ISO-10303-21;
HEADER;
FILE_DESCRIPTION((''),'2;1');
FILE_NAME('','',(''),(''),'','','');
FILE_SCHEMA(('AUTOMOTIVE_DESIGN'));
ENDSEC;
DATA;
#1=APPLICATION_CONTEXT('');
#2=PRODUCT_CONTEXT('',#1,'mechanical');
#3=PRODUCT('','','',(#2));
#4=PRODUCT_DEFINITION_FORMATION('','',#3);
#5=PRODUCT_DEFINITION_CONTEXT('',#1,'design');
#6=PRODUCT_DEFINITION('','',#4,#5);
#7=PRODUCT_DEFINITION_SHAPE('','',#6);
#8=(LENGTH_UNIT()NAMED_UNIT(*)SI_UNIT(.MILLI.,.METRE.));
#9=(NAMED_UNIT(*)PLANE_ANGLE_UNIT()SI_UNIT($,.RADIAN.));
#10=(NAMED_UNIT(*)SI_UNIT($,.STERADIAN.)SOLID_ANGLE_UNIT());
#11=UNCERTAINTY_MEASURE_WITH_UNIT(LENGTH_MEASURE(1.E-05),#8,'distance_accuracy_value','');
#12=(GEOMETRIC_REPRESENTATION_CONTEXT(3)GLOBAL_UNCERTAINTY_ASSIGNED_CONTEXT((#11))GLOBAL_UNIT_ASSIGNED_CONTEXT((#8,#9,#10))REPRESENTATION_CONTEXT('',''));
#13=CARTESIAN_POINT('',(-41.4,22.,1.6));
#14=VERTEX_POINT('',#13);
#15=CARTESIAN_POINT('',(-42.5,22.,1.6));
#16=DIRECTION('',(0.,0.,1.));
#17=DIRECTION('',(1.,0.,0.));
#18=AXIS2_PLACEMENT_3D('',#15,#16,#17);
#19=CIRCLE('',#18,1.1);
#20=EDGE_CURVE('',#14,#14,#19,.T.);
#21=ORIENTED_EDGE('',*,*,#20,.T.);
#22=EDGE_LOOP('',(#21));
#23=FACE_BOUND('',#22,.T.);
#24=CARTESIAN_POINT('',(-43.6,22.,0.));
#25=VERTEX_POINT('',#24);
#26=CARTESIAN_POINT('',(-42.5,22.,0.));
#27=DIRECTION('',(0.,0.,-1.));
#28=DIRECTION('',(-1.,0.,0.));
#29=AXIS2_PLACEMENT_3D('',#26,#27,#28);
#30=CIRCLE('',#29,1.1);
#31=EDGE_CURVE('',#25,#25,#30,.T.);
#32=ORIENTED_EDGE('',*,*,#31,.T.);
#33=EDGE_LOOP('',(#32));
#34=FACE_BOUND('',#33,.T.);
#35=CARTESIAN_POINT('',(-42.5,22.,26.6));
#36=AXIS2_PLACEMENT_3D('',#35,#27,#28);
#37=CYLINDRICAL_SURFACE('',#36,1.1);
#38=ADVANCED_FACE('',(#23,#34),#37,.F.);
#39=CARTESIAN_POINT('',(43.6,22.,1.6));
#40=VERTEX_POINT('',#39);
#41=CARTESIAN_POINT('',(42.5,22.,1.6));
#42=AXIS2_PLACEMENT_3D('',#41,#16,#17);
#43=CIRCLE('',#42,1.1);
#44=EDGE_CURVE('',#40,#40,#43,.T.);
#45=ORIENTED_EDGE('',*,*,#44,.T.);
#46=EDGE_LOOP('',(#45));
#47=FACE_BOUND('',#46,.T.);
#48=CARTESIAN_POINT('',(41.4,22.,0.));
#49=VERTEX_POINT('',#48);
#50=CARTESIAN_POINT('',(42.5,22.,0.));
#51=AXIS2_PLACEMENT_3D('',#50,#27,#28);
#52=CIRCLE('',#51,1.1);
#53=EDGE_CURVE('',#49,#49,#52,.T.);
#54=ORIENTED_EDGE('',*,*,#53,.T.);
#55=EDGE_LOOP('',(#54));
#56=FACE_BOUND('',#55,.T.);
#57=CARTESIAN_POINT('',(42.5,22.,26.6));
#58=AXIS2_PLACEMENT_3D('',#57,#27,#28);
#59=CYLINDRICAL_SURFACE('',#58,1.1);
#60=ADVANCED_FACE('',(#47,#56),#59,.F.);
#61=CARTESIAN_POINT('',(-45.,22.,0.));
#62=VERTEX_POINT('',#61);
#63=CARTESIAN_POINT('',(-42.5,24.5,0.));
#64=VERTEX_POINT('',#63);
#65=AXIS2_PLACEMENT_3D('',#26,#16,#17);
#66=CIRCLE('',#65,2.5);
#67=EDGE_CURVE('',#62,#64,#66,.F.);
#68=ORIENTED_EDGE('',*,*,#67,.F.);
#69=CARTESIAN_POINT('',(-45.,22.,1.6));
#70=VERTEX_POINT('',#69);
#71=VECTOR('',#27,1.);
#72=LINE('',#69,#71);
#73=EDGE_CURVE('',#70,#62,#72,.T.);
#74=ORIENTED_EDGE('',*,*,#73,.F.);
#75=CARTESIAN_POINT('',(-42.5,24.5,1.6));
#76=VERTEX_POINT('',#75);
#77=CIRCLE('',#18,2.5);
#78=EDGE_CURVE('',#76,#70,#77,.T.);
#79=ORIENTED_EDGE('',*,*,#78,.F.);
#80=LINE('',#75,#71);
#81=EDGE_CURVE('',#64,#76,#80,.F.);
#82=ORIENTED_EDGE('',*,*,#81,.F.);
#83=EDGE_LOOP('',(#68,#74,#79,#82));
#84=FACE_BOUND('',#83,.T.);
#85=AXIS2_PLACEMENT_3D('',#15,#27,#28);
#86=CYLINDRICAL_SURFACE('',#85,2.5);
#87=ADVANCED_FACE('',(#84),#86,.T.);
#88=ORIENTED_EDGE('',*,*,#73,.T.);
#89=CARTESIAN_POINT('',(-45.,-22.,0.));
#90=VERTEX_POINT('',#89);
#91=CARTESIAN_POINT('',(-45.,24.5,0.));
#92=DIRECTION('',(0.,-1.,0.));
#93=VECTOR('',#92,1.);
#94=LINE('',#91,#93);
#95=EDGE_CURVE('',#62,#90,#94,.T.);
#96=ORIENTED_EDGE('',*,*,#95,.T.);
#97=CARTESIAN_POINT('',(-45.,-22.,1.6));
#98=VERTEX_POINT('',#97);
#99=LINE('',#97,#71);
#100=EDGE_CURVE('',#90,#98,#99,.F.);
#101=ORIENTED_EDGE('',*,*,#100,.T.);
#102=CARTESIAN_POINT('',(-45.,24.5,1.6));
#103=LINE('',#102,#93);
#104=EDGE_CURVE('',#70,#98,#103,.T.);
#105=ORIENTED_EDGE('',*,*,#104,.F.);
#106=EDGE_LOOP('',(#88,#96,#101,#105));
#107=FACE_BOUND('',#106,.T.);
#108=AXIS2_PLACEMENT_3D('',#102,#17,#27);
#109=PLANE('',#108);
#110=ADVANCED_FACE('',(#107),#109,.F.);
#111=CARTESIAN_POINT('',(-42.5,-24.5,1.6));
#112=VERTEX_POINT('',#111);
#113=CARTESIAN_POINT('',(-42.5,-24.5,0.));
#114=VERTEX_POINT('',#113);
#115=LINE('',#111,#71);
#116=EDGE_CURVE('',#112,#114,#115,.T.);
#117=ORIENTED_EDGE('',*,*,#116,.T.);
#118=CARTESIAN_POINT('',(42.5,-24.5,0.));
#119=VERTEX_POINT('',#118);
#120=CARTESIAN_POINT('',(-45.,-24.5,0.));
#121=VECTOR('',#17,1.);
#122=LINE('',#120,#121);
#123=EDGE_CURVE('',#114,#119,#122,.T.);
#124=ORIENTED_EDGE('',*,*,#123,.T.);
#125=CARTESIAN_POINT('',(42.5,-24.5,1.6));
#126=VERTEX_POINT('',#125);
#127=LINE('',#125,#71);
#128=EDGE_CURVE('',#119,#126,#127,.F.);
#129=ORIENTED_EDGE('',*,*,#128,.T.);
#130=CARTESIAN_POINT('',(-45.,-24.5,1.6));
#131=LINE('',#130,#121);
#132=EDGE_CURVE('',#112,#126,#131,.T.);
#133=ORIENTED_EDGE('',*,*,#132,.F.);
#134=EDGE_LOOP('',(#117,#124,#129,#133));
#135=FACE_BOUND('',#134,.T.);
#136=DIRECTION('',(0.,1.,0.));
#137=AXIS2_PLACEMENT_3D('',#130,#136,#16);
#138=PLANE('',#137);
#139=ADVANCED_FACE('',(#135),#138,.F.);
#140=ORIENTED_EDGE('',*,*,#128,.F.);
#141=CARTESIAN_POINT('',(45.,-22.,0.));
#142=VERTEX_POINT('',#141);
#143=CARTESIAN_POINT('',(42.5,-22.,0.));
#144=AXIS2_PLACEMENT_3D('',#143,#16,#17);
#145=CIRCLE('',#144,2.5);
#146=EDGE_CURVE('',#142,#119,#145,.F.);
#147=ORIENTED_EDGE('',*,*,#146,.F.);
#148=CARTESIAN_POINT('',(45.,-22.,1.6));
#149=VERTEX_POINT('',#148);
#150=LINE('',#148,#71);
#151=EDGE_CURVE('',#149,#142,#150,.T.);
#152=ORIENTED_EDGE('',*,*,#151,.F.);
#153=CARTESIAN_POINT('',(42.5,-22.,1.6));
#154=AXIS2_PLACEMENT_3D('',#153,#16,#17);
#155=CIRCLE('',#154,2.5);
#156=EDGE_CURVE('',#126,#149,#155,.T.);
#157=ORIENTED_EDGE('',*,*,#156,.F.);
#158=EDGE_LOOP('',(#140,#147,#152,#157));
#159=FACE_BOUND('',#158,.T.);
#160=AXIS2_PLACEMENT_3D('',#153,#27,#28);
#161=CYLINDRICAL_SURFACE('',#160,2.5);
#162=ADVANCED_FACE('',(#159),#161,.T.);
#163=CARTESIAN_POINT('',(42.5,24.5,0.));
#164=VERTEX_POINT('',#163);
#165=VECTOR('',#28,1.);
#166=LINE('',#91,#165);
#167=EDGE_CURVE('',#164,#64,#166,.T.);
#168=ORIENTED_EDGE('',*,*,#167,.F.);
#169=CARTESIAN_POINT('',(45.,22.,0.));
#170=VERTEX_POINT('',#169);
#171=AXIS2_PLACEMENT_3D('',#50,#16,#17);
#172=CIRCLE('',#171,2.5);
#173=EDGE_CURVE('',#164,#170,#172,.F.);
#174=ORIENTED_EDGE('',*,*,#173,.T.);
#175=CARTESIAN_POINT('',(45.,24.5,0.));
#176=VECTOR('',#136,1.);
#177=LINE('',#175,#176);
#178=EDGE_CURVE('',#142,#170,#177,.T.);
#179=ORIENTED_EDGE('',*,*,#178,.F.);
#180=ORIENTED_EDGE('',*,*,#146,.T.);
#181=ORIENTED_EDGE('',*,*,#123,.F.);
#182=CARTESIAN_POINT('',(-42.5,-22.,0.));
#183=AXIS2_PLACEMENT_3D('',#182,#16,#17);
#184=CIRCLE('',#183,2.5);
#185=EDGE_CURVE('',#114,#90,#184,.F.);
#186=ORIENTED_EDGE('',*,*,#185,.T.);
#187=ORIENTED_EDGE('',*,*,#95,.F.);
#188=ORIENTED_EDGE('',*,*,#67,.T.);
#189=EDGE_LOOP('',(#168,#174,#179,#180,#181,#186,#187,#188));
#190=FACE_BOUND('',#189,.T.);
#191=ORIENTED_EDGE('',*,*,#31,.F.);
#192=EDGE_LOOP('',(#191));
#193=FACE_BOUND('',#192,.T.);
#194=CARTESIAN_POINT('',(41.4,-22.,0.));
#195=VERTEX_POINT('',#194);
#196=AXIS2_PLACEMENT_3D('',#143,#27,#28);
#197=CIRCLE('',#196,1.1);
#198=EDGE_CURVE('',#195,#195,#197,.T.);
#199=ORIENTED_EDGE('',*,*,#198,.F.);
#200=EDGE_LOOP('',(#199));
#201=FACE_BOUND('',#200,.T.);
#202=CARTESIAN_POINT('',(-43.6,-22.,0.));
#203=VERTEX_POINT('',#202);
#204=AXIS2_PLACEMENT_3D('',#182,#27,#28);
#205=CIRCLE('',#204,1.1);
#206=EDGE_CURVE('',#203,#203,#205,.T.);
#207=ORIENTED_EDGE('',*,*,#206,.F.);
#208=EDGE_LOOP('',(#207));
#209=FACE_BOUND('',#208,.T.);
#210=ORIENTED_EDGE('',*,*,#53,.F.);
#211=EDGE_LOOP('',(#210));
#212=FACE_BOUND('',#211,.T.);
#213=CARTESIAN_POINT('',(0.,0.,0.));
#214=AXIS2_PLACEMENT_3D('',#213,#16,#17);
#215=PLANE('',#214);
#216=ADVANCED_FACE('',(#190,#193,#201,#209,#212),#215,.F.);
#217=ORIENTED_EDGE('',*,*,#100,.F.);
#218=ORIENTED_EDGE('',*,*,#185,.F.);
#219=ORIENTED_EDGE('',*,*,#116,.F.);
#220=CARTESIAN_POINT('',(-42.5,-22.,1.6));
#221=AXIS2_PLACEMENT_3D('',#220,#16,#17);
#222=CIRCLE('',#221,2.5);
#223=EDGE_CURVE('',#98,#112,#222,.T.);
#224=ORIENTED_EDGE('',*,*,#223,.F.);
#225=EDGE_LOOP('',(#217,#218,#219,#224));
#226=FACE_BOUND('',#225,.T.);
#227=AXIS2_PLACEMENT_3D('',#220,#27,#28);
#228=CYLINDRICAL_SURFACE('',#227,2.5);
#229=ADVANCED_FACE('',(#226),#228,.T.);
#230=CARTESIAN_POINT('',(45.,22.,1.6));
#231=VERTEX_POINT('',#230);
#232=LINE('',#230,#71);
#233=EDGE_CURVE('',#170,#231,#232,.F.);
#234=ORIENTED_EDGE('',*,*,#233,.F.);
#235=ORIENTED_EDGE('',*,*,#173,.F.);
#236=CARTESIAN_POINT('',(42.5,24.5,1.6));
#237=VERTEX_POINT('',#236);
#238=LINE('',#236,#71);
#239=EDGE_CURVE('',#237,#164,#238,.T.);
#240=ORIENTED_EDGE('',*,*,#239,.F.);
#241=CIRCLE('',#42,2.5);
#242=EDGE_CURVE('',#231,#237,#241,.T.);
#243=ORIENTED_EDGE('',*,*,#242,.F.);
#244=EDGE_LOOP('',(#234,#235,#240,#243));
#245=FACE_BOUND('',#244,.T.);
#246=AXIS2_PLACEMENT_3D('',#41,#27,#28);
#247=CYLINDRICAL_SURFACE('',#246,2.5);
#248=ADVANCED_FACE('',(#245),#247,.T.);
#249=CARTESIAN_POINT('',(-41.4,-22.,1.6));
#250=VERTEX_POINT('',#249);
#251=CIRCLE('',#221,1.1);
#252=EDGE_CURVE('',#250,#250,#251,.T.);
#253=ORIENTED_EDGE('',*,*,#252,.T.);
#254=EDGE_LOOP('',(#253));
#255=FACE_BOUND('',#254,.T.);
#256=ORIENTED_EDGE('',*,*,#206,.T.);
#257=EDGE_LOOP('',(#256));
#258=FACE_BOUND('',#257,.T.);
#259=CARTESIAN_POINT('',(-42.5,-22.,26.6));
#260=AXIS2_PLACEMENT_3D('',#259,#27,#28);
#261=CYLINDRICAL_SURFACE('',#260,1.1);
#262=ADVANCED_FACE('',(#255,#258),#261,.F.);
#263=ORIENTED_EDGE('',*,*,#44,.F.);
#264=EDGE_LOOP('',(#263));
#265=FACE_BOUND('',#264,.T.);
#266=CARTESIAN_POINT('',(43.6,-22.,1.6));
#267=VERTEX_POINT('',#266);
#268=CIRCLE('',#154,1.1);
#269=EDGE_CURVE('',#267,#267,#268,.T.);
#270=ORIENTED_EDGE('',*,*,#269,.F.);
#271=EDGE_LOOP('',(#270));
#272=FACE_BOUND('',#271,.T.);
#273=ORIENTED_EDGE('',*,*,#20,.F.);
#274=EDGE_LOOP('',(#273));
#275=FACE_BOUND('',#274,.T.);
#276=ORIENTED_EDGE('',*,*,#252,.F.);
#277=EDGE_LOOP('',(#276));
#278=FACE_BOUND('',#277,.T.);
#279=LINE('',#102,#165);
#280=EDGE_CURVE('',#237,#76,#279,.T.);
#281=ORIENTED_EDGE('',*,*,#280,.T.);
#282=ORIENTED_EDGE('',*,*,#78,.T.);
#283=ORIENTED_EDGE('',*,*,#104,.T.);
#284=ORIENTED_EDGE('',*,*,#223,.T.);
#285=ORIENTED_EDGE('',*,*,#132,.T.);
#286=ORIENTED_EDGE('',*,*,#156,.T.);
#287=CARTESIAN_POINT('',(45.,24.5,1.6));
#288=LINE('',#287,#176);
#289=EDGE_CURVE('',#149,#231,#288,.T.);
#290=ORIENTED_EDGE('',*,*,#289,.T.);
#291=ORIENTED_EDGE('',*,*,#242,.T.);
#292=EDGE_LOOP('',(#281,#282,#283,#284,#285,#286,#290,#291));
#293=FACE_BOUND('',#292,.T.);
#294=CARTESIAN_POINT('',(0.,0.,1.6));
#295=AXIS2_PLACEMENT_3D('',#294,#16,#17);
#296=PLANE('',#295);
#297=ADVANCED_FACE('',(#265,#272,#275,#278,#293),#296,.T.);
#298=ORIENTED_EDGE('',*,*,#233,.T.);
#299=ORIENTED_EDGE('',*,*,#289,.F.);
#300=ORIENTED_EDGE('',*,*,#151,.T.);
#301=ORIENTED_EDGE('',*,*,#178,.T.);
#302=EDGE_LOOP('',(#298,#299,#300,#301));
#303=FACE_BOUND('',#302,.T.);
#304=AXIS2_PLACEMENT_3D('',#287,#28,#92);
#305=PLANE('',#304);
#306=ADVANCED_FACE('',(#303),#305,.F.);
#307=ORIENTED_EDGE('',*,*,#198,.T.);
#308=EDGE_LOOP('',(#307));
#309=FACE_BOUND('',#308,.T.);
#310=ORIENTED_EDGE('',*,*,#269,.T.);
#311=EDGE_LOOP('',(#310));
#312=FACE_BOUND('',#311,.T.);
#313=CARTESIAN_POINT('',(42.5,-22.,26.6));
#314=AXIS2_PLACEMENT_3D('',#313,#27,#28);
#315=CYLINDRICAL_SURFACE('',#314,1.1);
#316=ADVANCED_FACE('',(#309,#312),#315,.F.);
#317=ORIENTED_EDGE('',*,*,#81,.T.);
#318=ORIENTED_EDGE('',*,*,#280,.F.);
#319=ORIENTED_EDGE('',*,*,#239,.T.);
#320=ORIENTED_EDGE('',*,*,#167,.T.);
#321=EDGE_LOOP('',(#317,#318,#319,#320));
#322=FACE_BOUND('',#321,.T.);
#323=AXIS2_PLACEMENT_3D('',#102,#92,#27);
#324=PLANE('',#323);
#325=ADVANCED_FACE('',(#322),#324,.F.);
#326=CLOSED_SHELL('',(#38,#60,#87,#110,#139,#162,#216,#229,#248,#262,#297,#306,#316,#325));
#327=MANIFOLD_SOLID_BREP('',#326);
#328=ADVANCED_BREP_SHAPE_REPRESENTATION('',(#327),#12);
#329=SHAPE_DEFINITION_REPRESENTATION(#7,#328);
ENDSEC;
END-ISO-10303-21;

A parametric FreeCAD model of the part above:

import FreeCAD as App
import Part
import Sketcher
Q = App.Units.Quantity


def edges_at(feature, points):
    """Names of the edges that pass closest to the given points."""
    edges = feature.Shape.Edges
    near = lambda p: min(range(len(edges)), key=lambda i: edges[i].distToShape(Part.Vertex(*p))[0])
    return sorted({f"Edge{near(p) + 1}" for p in points})


def add_polygon(sketch, points):
    """Adds a closed chain of lines whose ends are joined by coincident constraints."""
    first, n = sketch.GeometryCount, len(points)
    for a, b in zip(points, points[1:] + points[:1]):
        sketch.addGeometry(Part.LineSegment(App.Vector(*a, 0), App.Vector(*b, 0)), False)
    for i in range(n):
        sketch.addConstraint(Sketcher.Constraint("Coincident", first + i, 2, first + (i + 1) % n, 1))

doc = App.newDocument("Part")
body = doc.addObject("PartDesign::Body", "Body")

sketch1 = body.newObject("Sketcher::SketchObject", "Sketch")
sketch1.AttachmentSupport = (doc.getObject("XY_Plane"), [""])
sketch1.MapMode = "FlatFace"
add_polygon(sketch1, [(-45, 24), (-45, -24), (45, -24), (45, 24)])
sketch1.addConstraint(Sketcher.Constraint("Vertical", 0))
sketch1.addConstraint(Sketcher.Constraint("Horizontal", 1))
sketch1.addConstraint(Sketcher.Constraint("Vertical", 2))
sketch1.addConstraint(Sketcher.Constraint("Horizontal", 3))
sketch1.addConstraint(Sketcher.Constraint("Symmetric", 0, 2, 2, 2, -1, 1))
sketch1.addConstraint(Sketcher.Constraint("DistanceX", 1, 1, 1, 2, Q("90 mm")))
sketch1.addConstraint(Sketcher.Constraint("DistanceY", 0, 2, 0, 1, Q("49 mm")))
pad1 = body.newObject("PartDesign::Pad", "Pad")
pad1.Profile = sketch1
pad1.Length = 1.6
doc.recompute()

fillet = body.newObject("PartDesign::Fillet", "Fillet")
fillet.Base = (pad1, edges_at(pad1, [
    (45, -24.5, 0.8),
    (-45, -24.5, 0.8),
    (-45, 24.5, 0.8),
    (45, 24.5, 0.8),
]))
fillet.Radius = 2.5

sketch2 = body.newObject("Sketcher::SketchObject", "Sketch001")
sketch2.AttachmentSupport = (doc.getObject("XY_Plane"), [""])
sketch2.MapMode = "FlatFace"
sketch2.addGeometry(Part.Circle(App.Vector(42.5, -22, 0), App.Vector(0, 0, 1), 1.1), False)
sketch2.addGeometry(Part.Circle(App.Vector(42.5, 22, 0), App.Vector(0, 0, 1), 1.1), False)
sketch2.addGeometry(Part.Circle(App.Vector(-42.5, 22, 0), App.Vector(0, 0, 1), 1.1), False)
sketch2.addGeometry(Part.Circle(App.Vector(-42.5, -22, 0), App.Vector(0, 0, 1), 1.1), False)
sketch2.addConstraint(Sketcher.Constraint("Equal", 0, 1))
sketch2.addConstraint(Sketcher.Constraint("Equal", 1, 2))
sketch2.addConstraint(Sketcher.Constraint("Equal", 2, 3))
sketch2.addConstraint(Sketcher.Constraint("Symmetric", 0, 3, 2, 3, -1, 1))
sketch2.addConstraint(Sketcher.Constraint("Symmetric", 1, 3, 3, 3, -1, 1))
sketch2.addConstraint(Sketcher.Constraint("Symmetric", 1, 3, 2, 3, -2))
sketch2.addConstraint(Sketcher.Constraint("Diameter", 0, Q("2.2 mm")))
sketch2.addConstraint(Sketcher.Constraint("DistanceY", 0, 3, -1, 1, Q("22 mm")))
sketch2.addConstraint(Sketcher.Constraint("DistanceX", 2, 3, 1, 3, Q("85 mm")))
pocket1 = body.newObject("PartDesign::Pocket", "Pocket")
pocket1.Profile = sketch2
pocket1.Length = 26.6
pocket1.Reversed = True

doc.recompute()
